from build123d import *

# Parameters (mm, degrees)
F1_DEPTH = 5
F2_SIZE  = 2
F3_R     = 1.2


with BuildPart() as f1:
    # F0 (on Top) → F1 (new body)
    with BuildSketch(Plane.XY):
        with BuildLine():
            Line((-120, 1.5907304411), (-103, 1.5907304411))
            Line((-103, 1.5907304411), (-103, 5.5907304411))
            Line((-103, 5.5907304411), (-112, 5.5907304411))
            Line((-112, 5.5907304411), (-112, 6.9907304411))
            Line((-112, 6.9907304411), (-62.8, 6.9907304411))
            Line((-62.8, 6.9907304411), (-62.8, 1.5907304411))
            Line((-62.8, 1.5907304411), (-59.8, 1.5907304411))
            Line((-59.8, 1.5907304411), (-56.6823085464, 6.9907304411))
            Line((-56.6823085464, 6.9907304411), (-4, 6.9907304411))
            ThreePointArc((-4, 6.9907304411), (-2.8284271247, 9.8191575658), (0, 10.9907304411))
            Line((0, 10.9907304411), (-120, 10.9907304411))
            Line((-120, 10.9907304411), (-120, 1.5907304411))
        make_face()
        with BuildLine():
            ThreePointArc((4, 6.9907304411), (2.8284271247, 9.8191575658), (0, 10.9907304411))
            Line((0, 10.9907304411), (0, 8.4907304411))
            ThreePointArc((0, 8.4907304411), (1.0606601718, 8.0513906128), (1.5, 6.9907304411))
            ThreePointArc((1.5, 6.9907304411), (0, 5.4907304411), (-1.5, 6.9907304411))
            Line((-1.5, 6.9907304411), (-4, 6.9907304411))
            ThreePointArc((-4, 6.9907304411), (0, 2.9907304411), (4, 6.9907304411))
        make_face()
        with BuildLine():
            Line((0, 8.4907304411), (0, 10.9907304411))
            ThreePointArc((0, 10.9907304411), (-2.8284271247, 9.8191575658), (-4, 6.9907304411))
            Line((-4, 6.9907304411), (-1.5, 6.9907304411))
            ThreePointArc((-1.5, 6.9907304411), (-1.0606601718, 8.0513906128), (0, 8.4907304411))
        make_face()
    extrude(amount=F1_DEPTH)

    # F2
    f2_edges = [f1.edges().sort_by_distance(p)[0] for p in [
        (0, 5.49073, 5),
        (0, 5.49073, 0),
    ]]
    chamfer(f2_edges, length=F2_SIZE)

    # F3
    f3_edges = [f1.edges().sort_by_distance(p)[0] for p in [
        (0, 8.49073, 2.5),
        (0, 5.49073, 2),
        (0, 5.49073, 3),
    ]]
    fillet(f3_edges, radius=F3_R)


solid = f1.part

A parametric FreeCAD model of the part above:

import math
import FreeCAD as App
import Part
import Sketcher
from FreeCAD import Vector
Q = App.Units.Quantity


def edges_at(feature, points):
    """Names of the edges that pass closest to the given points."""
    edges = feature.Shape.Edges
    near = lambda p: min(range(len(edges)), key=lambda i: edges[i].distToShape(Part.Vertex(*p))[0])
    return sorted({f"Edge{near(p) + 1}" for p in points})

doc = App.newDocument("Part")
params = doc.addObject("Spreadsheet::Sheet", "Params")
for row, (alias, value) in enumerate([
    ("sketch1_radius", "4 mm"),
    ("sketch1_radius2", "1.5 mm"),
    ("sketch1_width", "17 mm"),
    ("sketch1_width2", "9 mm"),
    ("sketch1_width3", "3 mm"),
    ("pad1_length", "5 mm"),
    ("chamfer_size", "2 mm"),
    ("fillet_radius", "1.2 mm"),
], start=1):
    params.set(f"A{row}", alias)
    params.set(f"B{row}", "=" + value)
    params.setAlias(f"B{row}", alias)

body = doc.addObject("PartDesign::Body", "Body")

# Sketch on XY plane
sketch1 = doc.addObject("Sketcher::SketchObject", "Sketch")
body.addObject(sketch1)
sketch1.AttachmentSupport = (doc.XY_Plane, [""])
sketch1.MapMode = "FlatFace"
sketch1.addGeometry([
    Part.LineSegment(Vector(-120, 1.59073, 0), Vector(-103, 1.59073, 0)),  # 0
    Part.LineSegment(Vector(-103, 1.59073, 0), Vector(-103, 5.59073, 0)),  # 1
    Part.LineSegment(Vector(-103, 5.59073, 0), Vector(-112, 5.59073, 0)),  # 2
    Part.LineSegment(Vector(-112, 5.59073, 0), Vector(-112, 6.99073, 0)),  # 3
    Part.LineSegment(Vector(-112, 6.99073, 0), Vector(-62.8, 6.99073, 0)),  # 4
    Part.LineSegment(Vector(-62.8, 6.99073, 0), Vector(-62.8, 1.59073, 0)),  # 5
    Part.LineSegment(Vector(-62.8, 1.59073, 0), Vector(-59.8, 1.59073, 0)),  # 6
    Part.LineSegment(Vector(-59.8, 1.59073, 0), Vector(-56.682309, 6.99073, 0)),  # 7
    Part.LineSegment(Vector(-56.682309, 6.99073, 0), Vector(-4, 6.99073, 0)),  # 8
    Part.ArcOfCircle(Part.Circle(Vector(0, 6.99073, 0), Vector(0, 0, 1), 4), math.radians(180), math.radians(360)),  # 9
    Part.ArcOfCircle(Part.Circle(Vector(0, 6.99073, 0), Vector(0, 0, 1), 4), math.radians(0), math.radians(90)),  # 10
    Part.LineSegment(Vector(0, 10.99073, 0), Vector(-120, 10.99073, 0)),  # 11
    Part.LineSegment(Vector(-120, 10.99073, 0), Vector(-120, 1.59073, 0)),  # 12
    Part.ArcOfCircle(Part.Circle(Vector(0, 6.99073, 0), Vector(0, 0, 1), 1.5), math.radians(90), math.radians(180)),  # 13
    Part.ArcOfCircle(Part.Circle(Vector(0, 6.99073, 0), Vector(0, 0, 1), 1.5), math.radians(0), math.radians(90)),  # 14
    Part.ArcOfCircle(Part.Circle(Vector(0, 6.99073, 0), Vector(0, 0, 1), 1.5), math.radians(180), math.radians(360)),  # 15
], False)
sketch1.addConstraint([
    Sketcher.Constraint("Coincident", 0, 2, 1, 1),
    Sketcher.Constraint("Coincident", 1, 2, 2, 1),
    Sketcher.Constraint("Coincident", 2, 2, 3, 1),
    Sketcher.Constraint("Coincident", 3, 2, 4, 1),
    Sketcher.Constraint("Coincident", 4, 2, 5, 1),
    Sketcher.Constraint("Coincident", 5, 2, 6, 1),
    Sketcher.Constraint("Coincident", 6, 2, 7, 1),
    Sketcher.Constraint("Coincident", 7, 2, 8, 1),
    Sketcher.Constraint("Coincident", 8, 2, 9, 1),
    Sketcher.Constraint("Tangent", 9, 2, 10, 1),
    Sketcher.Constraint("Tangent", 10, 2, 11, 1),
    Sketcher.Constraint("Coincident", 11, 2, 12, 1),
    Sketcher.Constraint("Coincident", 12, 2, 0, 1),
    Sketcher.Constraint("Tangent", 13, 1, 14, 2),
    Sketcher.Constraint("Tangent", 14, 1, 15, 2),
    Sketcher.Constraint("Tangent", 15, 1, 13, 2),
    Sketcher.Constraint("Horizontal", 0),
    Sketcher.Constraint("Vertical", 1),
    Sketcher.Constraint("Horizontal", 2),
    Sketcher.Constraint("Vertical", 3),
    Sketcher.Constraint("Horizontal", 4),
    Sketcher.Constraint("Vertical", 5),
    Sketcher.Constraint("Horizontal", 6),
    Sketcher.Constraint("Horizontal", 8),
    Sketcher.Constraint("Horizontal", 11),
    Sketcher.Constraint("Vertical", 12),
    Sketcher.Constraint("Coincident", 13, 3, 9, 3),
    Sketcher.Constraint("Equal", 9, 10),
    Sketcher.Constraint("Symmetric", 8, 2, 9, 2, -2),
    Sketcher.Constraint("PointOnObject", 13, 1, -2),
    Sketcher.Constraint("Horizontal", 15, 3, 3, 2),
    Sketcher.Constraint("Horizontal", 0, 2, 5, 2),
    Sketcher.Constraint("Horizontal", 4, 2, 7, 2),
    Sketcher.Constraint("Horizontal", 9, 2, 14, 1),
    Sketcher.Constraint("Horizontal", 14, 1, 15, 1),
    Sketcher.Constraint("Radius", 9, 4.0),
    Sketcher.Constraint("Radius", 13, 1.5),
    Sketcher.Constraint("DistanceX", 0, 1, 0, 2, 17.0),
    Sketcher.Constraint("DistanceX", 2, 2, 2, 1, 9.0),
    Sketcher.Constraint("DistanceX", 6, 1, 6, 2, 3.0),
    Sketcher.Constraint("DistanceX", 11, 2, 11, 1, 120.0),
    Sketcher.Constraint("DistanceY", 1, 1, 1, 2, 4.0),
    Sketcher.Constraint("Angle", 7, Q("60 deg")),
    Sketcher.Constraint("DistanceX", 4, 1, 4, 2, 49.2),
    Sketcher.Constraint("DistanceY", 3, 1, 3, 2, 1.4),
    Sketcher.Constraint("DistanceY", -1, 1, 9, 3, 6.99073),
])
sketch1.setExpression("Constraints[35]", "Params.sketch1_radius")
sketch1.setExpression("Constraints[36]", "Params.sketch1_radius2")
sketch1.setExpression("Constraints[37]", "Params.sketch1_width")
sketch1.setExpression("Constraints[38]", "Params.sketch1_width2")
sketch1.setExpression("Constraints[39]", "Params.sketch1_width3")
pad1 = doc.addObject("PartDesign::Pad", "Pad")
body.addObject(pad1)
pad1.Profile = sketch1
pad1.setExpression("Length", "Params.pad1_length")
doc.recompute()

chamfer = doc.addObject("PartDesign::Chamfer", "Chamfer")
body.addObject(chamfer)
chamfer.Base = (pad1, edges_at(pad1, [(0, 5.491, 5), (0, 5.491, 0)]))
chamfer.setExpression("Size", "Params.chamfer_size")
doc.recompute()

fillet = doc.addObject("PartDesign::Fillet", "Fillet")
body.addObject(fillet)
fillet.Base = (chamfer, edges_at(chamfer, [(0, 8.491, 2.5), (0, 5.491, 2), (0, 5.491, 3)]))
fillet.setExpression("Radius", "Params.fillet_radius")

doc.recompute()
